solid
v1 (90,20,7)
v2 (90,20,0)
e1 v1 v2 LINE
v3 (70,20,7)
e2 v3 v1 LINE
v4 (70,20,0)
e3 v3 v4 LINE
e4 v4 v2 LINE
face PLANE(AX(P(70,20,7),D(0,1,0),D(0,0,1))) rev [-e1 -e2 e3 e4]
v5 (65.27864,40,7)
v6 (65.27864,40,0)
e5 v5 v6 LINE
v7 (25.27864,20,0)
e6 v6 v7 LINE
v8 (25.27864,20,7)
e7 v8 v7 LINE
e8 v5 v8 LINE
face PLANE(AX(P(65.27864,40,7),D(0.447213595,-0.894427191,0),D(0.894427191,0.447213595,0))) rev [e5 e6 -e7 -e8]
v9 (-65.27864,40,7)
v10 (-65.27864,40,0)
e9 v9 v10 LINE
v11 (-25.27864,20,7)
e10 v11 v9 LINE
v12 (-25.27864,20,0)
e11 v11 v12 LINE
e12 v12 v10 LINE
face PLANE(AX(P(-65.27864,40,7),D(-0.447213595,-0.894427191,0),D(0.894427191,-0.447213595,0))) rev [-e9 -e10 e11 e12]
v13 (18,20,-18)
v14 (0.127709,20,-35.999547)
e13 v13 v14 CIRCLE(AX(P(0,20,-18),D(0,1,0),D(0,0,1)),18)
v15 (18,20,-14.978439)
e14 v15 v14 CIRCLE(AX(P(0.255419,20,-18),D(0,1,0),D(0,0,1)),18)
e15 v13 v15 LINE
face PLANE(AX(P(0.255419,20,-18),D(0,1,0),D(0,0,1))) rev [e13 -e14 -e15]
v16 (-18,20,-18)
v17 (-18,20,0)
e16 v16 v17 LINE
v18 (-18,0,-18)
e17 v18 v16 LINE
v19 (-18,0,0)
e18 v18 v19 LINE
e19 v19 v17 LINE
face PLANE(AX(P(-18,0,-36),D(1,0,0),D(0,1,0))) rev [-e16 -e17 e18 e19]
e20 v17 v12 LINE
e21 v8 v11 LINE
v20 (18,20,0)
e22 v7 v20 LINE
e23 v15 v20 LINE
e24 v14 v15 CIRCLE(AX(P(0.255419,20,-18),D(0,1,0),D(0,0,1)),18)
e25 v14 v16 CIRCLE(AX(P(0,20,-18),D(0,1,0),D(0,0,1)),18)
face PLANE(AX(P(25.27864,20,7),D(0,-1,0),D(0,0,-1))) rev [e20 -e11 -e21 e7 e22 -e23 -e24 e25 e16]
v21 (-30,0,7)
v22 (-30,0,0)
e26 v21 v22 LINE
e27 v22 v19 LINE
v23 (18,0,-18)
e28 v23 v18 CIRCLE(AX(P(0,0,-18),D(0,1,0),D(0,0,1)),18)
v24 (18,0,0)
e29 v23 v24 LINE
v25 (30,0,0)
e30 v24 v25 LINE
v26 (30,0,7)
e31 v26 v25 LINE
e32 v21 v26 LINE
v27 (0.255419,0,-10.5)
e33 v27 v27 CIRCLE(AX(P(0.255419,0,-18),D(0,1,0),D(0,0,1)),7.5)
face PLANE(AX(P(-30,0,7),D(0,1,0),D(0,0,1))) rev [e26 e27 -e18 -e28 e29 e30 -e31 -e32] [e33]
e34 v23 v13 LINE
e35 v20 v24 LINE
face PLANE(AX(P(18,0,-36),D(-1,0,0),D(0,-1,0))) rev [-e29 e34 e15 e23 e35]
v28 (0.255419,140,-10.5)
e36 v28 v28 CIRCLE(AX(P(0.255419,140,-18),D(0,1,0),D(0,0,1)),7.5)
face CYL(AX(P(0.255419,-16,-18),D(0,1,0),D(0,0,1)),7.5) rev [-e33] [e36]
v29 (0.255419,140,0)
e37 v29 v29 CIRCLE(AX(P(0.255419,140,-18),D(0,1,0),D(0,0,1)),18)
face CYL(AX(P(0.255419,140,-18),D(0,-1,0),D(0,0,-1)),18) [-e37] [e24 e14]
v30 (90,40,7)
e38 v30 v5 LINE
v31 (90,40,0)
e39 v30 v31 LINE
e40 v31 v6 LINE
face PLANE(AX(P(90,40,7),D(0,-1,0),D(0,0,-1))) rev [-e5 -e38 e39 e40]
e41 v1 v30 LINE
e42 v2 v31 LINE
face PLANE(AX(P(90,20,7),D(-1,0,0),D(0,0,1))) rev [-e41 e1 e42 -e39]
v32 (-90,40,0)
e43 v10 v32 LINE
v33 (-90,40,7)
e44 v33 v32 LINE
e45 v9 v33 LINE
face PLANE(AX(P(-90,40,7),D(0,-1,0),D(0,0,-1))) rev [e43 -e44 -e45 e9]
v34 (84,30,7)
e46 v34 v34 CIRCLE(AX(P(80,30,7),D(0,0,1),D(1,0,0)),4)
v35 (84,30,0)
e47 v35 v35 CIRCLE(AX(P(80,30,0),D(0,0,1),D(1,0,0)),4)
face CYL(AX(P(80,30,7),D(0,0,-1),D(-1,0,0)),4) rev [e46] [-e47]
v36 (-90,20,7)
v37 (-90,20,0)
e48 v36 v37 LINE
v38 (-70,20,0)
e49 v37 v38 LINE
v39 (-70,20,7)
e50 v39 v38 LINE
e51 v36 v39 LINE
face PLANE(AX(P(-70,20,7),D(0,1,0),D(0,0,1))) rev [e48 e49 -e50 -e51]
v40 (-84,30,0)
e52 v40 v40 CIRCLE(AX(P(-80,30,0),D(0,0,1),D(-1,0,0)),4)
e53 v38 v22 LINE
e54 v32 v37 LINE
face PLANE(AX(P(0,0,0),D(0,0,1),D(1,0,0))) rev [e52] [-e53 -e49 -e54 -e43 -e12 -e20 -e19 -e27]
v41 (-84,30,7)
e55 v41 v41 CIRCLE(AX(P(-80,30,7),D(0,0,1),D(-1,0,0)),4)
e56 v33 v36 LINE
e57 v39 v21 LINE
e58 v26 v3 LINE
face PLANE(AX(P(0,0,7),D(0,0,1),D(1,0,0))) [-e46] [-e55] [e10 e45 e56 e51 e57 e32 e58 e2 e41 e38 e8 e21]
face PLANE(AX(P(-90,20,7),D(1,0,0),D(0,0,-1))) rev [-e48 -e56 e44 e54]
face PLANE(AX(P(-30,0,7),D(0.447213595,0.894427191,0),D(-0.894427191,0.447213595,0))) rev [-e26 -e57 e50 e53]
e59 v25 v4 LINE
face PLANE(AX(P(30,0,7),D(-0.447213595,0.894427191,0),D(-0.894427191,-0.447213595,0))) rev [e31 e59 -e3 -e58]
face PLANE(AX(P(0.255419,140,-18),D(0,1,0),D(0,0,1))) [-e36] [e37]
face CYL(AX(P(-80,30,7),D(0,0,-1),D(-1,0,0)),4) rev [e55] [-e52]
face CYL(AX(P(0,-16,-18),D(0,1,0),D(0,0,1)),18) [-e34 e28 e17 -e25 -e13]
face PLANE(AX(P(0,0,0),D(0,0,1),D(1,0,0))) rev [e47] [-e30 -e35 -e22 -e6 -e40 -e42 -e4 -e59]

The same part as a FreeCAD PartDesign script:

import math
import FreeCAD as App
import Part
import Sketcher
Q = App.Units.Quantity

doc = App.newDocument("Part")
body = doc.addObject("PartDesign::Body", "Body")

sketch1 = body.newObject("Sketcher::SketchObject", "Sketch")
sketch1.AttachmentSupport = (doc.getObject("XY_Plane"), [""])
sketch1.MapMode = "FlatFace"
sketch1.addGeometry([
    Part.LineSegment(App.Vector(-30, 0, 0), App.Vector(30, 0, 0)),
    Part.LineSegment(App.Vector(30, 0, 0), App.Vector(70, 20, 0)),
    Part.LineSegment(App.Vector(70, 20, 0), App.Vector(90, 20, 0)),
    Part.LineSegment(App.Vector(90, 20, 0), App.Vector(90, 40, 0)),
    Part.LineSegment(App.Vector(90, 40, 0), App.Vector(65.3, 40, 0)),
    Part.LineSegment(App.Vector(65.3, 40, 0), App.Vector(25.3, 20, 0)),
    Part.LineSegment(App.Vector(25.3, 20, 0), App.Vector(-25.3, 20, 0)),
    Part.LineSegment(App.Vector(-25.3, 20, 0), App.Vector(-65.3, 40, 0)),
    Part.LineSegment(App.Vector(-65.3, 40, 0), App.Vector(-90, 40, 0)),
    Part.LineSegment(App.Vector(-90, 40, 0), App.Vector(-90, 20, 0)),
    Part.LineSegment(App.Vector(-90, 20, 0), App.Vector(-70, 20, 0)),
    Part.LineSegment(App.Vector(-70, 20, 0), App.Vector(-30, 0, 0)),
    Part.Circle(App.Vector(-80, 30, 0), App.Vector(0, 0, 1), 4),
    Part.Circle(App.Vector(80, 30, 0), App.Vector(0, 0, 1), 4),
], False)
sketch1.addConstraint([
    Sketcher.Constraint("Coincident", 0, 2, 1, 1),
    Sketcher.Constraint("Coincident", 1, 2, 2, 1),
    Sketcher.Constraint("Coincident", 2, 2, 3, 1),
    Sketcher.Constraint("Coincident", 3, 2, 4, 1),
    Sketcher.Constraint("Coincident", 4, 2, 5, 1),
    Sketcher.Constraint("Coincident", 5, 2, 6, 1),
    Sketcher.Constraint("Coincident", 6, 2, 7, 1),
    Sketcher.Constraint("Coincident", 7, 2, 8, 1),
    Sketcher.Constraint("Coincident", 8, 2, 9, 1),
    Sketcher.Constraint("Coincident", 9, 2, 10, 1),
    Sketcher.Constraint("Coincident", 10, 2, 11, 1),
    Sketcher.Constraint("Coincident", 11, 2, 0, 1),
    Sketcher.Constraint("Horizontal", 0),
    Sketcher.Constraint("Horizontal", 2),
    Sketcher.Constraint("Vertical", 3),
    Sketcher.Constraint("Horizontal", 4),
    Sketcher.Constraint("Horizontal", 6),
    Sketcher.Constraint("Horizontal", 8),
    Sketcher.Constraint("Vertical", 9),
    Sketcher.Constraint("Horizontal", 10),
    Sketcher.Constraint("Equal", 12, 13),
    Sketcher.Constraint("Symmetric", 0, 2, 11, 2, -1, 1),
    Sketcher.Constraint("Symmetric", 12, 3, 13, 3, -2),
    Sketcher.Constraint("Symmetric", 4, 2, 7, 2, -2),
    Sketcher.Constraint("Symmetric", 2, 2, 9, 2, -2),
    Sketcher.Constraint("Parallel", 1, 5),
    Sketcher.Constraint("Parallel", 7, 11),
    Sketcher.Constraint("Horizontal", 2, 2, 5, 2),
    Sketcher.Constraint("Equal", 2, 10),
    Sketcher.Constraint("Equal", 10, 3),
    Sketcher.Constraint("Equal", 1, 5),
    Sketcher.Constraint("Diameter", 12, Q("8 mm")),
    Sketcher.Constraint("DistanceX", 0, 1, 0, 2, Q("60 mm")),
    Sketcher.Constraint("DistanceX", 2, 1, 2, 2, Q("20 mm")),
    Sketcher.Constraint("DistanceX", 12, 3, -1, 1, Q("80 mm")),
    Sketcher.Constraint("DistanceY", -1, 1, 12, 3, Q("30 mm")),
    Sketcher.Constraint("DistanceX", -1, 1, 1, 2, Q("70 mm")),
    Sketcher.Constraint("DistanceX", 4, 2, 4, 1, Q("24.72136 mm")),
])
pad1 = body.newObject("PartDesign::Pad", "Pad")
pad1.Profile = sketch1
pad1.Length = 7

sketch2 = body.newObject("Sketcher::SketchObject", "Sketch001")
sketch2.AttachmentSupport = (doc.getObject("XY_Plane"), [""])
sketch2.MapMode = "FlatFace"
sketch2.addGeometry([
    Part.LineSegment(App.Vector(18, 20, 0), App.Vector(18, 0, 0)),
    Part.LineSegment(App.Vector(18, 0, 0), App.Vector(-18, 0, 0)),
    Part.LineSegment(App.Vector(-18, 0, 0), App.Vector(-18, 20, 0)),
    Part.LineSegment(App.Vector(-18, 20, 0), App.Vector(18, 20, 0)),
], False)
sketch2.addConstraint([
    Sketcher.Constraint("Coincident", 0, 2, 1, 1),
    Sketcher.Constraint("Coincident", 1, 2, 2, 1),
    Sketcher.Constraint("Coincident", 2, 2, 3, 1),
    Sketcher.Constraint("Coincident", 3, 2, 0, 1),
    Sketcher.Constraint("Vertical", 0),
    Sketcher.Constraint("Horizontal", 1),
    Sketcher.Constraint("Vertical", 2),
    Sketcher.Constraint("Horizontal", 3),
    Sketcher.Constraint("Symmetric", 0, 2, 1, 2, -1, 1),
    Sketcher.Constraint("DistanceX", 1, 2, 1, 1, Q("36 mm")),
    Sketcher.Constraint("DistanceY", 0, 2, 0, 1, Q("20 mm")),
])
pad2 = body.newObject("PartDesign::Pad", "Pad001")
pad2.Profile = sketch2
pad2.Length = 36
pad2.Reversed = True

sketch3 = body.newObject("Sketcher::SketchObject", "Sketch002")
sketch3.AttachmentSupport = (doc.getObject("XZ_Plane"), [""])
sketch3.MapMode = "FlatFace"
sketch3.AttachmentOffset = App.Placement(App.Vector(0, 0, -20), App.Rotation())
sketch3.addGeometry([
    Part.ArcOfCircle(Part.Circle(App.Vector(0, -18, 0), App.Vector(0, 0, 1), 18), math.radians(-90), math.radians(0)),
    Part.LineSegment(App.Vector(18, -18, 0), App.Vector(18, -36, 0)),
    Part.LineSegment(App.Vector(18, -36, 0), App.Vector(0, -36, 0)),
    Part.LineSegment(App.Vector(-18, -36, 0), App.Vector(-18, -18, 0)),
    Part.ArcOfCircle(Part.Circle(App.Vector(0, -18, 0), App.Vector(0, 0, 1), 18), math.radians(180), math.radians(270)),
    Part.LineSegment(App.Vector(0, -36, 0), App.Vector(-18, -36, 0)),
    Part.Circle(App.Vector(0, -18, 0), App.Vector(0, 0, 1), 8),
], False)
sketch3.addConstraint([
    Sketcher.Constraint("Tangent", 0, 2, 1, 1),
    Sketcher.Constraint("Coincident", 1, 2, 2, 1),
    Sketcher.Constraint("Tangent", 2, 2, 0, 1),
    Sketcher.Constraint("Tangent", 3, 2, 4, 1),
    Sketcher.Constraint("Tangent", 4, 2, 5, 1),
    Sketcher.Constraint("Coincident", 5, 2, 3, 1),
    Sketcher.Constraint("Vertical", 1),
    Sketcher.Constraint("Horizontal", 2),
    Sketcher.Constraint("Vertical", 3),
    Sketcher.Constraint("Horizontal", 5),
    Sketcher.Constraint("Coincident", 4, 3, 0, 3),
    Sketcher.Constraint("Equal", 0, 4),
    Sketcher.Constraint("PointOnObject", 0, 3, -2),
    Sketcher.Constraint("Horizontal", 4, 3, 6, 3),
    Sketcher.Constraint("Diameter", 6, Q("15 mm")),
    Sketcher.Constraint("Radius", 0, Q("18 mm")),
    Sketcher.Constraint("DistanceY", 0, 3, -1, 1, Q("18 mm")),
    Sketcher.Constraint("DistanceX", -1, 1, 6, 3, Q("0.255419 mm")),
])
pocket1 = body.newObject("PartDesign::Pocket", "Pocket")
pocket1.Profile = sketch3
pocket1.Length = 36
pocket1.Reversed = True

sketch4 = body.newObject("Sketcher::SketchObject", "Sketch003")
sketch4.AttachmentSupport = (doc.getObject("XZ_Plane"), [""])
sketch4.MapMode = "FlatFace"
sketch4.AttachmentOffset = App.Placement(App.Vector(0, 0, -20), App.Rotation())
sketch4.addGeometry([
    Part.Circle(App.Vector(0, -18, 0), App.Vector(0, 0, 1), 18),
    Part.Circle(App.Vector(0, -18, 0), App.Vector(0, 0, 1), 8),
], False)
sketch4.addConstraint([
    Sketcher.Constraint("Coincident", 1, 3, 0, 3),
    Sketcher.Constraint("Diameter", 0, Q("36 mm")),
    Sketcher.Constraint("Diameter", 1, Q("15 mm")),
    Sketcher.Constraint("DistanceY", 0, 3, -1, 1, Q("18 mm")),
    Sketcher.Constraint("DistanceX", -1, 1, 0, 3, Q("0.255419 mm")),
])
pad3 = body.newObject("PartDesign::Pad", "Pad002")
pad3.Profile = sketch4
pad3.Length = 120
pad3.Reversed = True

doc.recompute()
